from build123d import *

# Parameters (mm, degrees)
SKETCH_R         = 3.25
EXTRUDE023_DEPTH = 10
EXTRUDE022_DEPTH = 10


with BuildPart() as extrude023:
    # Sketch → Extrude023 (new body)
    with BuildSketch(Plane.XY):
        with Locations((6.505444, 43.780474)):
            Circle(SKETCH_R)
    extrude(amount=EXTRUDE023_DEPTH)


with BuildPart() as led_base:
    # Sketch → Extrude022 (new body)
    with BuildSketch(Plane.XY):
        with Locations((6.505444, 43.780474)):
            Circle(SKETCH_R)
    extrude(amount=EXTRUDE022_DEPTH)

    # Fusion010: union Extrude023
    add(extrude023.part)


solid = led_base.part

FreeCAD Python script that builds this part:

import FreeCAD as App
import Part
import Sketcher
from FreeCAD import Vector
Q = App.Units.Quantity

doc = App.newDocument("Part")
params = doc.addObject("Spreadsheet::Sheet", "Params")
for row, (alias, value) in enumerate([
    ("sketch1_diameter", "6.5 mm"),
    ("pad1_length", "10 mm"),
    ("sketch2_diameter", "6.5 mm"),
    ("pad2_length", "10 mm"),
], start=1):
    params.set(f"A{row}", alias)
    params.set(f"B{row}", "=" + value)
    params.setAlias(f"B{row}", alias)

body = doc.addObject("PartDesign::Body", "Body")

sketch1 = body.newObject("Sketcher::SketchObject", "Sketch")
sketch1.AttachmentSupport = (doc.getObject("XY_Plane"), [""])
sketch1.MapMode = "FlatFace"
sketch1.addGeometry(Part.Circle(Vector(6.5, 43.8, 0), Vector(0, 0, 1), 3.2), False)
sketch1.addConstraint(Sketcher.Constraint("Diameter", 0, Q("6.5 mm")))
sketch1.addConstraint(Sketcher.Constraint("DistanceX", -1, 1, 0, 3, Q("6.505444 mm")))
sketch1.addConstraint(Sketcher.Constraint("DistanceY", -1, 1, 0, 3, Q("43.780474 mm")))
sketch1.setExpression("Constraints[0]", "Params.sketch1_diameter")
pad1 = body.newObject("PartDesign::Pad", "Pad")
pad1.Profile = sketch1
pad1.setExpression("Length", "Params.pad1_length")
body2 = doc.addObject("PartDesign::Body", "Body001")

sketch2 = body2.newObject("Sketcher::SketchObject", "Sketch001")
sketch2.AttachmentSupport = (doc.getObject("XY_Plane001"), [""])
sketch2.MapMode = "FlatFace"
sketch2.addGeometry(Part.Circle(Vector(6.5, 43.8, 0), Vector(0, 0, 1), 3.2), False)
sketch2.addConstraint(Sketcher.Constraint("Diameter", 0, Q("6.5 mm")))
sketch2.addConstraint(Sketcher.Constraint("DistanceX", -1, 1, 0, 3, Q("6.505444 mm")))
sketch2.addConstraint(Sketcher.Constraint("DistanceY", -1, 1, 0, 3, Q("43.780474 mm")))
sketch2.setExpression("Constraints[0]", "Params.sketch2_diameter")
pad2 = body2.newObject("PartDesign::Pad", "Pad001")
pad2.Profile = sketch2
pad2.setExpression("Length", "Params.pad2_length")
doc.recompute()

boolean = body2.newObject("PartDesign::Boolean", "Boolean")
boolean.Type = "Fuse"
boolean.addObjects([body])

doc.recompute()
